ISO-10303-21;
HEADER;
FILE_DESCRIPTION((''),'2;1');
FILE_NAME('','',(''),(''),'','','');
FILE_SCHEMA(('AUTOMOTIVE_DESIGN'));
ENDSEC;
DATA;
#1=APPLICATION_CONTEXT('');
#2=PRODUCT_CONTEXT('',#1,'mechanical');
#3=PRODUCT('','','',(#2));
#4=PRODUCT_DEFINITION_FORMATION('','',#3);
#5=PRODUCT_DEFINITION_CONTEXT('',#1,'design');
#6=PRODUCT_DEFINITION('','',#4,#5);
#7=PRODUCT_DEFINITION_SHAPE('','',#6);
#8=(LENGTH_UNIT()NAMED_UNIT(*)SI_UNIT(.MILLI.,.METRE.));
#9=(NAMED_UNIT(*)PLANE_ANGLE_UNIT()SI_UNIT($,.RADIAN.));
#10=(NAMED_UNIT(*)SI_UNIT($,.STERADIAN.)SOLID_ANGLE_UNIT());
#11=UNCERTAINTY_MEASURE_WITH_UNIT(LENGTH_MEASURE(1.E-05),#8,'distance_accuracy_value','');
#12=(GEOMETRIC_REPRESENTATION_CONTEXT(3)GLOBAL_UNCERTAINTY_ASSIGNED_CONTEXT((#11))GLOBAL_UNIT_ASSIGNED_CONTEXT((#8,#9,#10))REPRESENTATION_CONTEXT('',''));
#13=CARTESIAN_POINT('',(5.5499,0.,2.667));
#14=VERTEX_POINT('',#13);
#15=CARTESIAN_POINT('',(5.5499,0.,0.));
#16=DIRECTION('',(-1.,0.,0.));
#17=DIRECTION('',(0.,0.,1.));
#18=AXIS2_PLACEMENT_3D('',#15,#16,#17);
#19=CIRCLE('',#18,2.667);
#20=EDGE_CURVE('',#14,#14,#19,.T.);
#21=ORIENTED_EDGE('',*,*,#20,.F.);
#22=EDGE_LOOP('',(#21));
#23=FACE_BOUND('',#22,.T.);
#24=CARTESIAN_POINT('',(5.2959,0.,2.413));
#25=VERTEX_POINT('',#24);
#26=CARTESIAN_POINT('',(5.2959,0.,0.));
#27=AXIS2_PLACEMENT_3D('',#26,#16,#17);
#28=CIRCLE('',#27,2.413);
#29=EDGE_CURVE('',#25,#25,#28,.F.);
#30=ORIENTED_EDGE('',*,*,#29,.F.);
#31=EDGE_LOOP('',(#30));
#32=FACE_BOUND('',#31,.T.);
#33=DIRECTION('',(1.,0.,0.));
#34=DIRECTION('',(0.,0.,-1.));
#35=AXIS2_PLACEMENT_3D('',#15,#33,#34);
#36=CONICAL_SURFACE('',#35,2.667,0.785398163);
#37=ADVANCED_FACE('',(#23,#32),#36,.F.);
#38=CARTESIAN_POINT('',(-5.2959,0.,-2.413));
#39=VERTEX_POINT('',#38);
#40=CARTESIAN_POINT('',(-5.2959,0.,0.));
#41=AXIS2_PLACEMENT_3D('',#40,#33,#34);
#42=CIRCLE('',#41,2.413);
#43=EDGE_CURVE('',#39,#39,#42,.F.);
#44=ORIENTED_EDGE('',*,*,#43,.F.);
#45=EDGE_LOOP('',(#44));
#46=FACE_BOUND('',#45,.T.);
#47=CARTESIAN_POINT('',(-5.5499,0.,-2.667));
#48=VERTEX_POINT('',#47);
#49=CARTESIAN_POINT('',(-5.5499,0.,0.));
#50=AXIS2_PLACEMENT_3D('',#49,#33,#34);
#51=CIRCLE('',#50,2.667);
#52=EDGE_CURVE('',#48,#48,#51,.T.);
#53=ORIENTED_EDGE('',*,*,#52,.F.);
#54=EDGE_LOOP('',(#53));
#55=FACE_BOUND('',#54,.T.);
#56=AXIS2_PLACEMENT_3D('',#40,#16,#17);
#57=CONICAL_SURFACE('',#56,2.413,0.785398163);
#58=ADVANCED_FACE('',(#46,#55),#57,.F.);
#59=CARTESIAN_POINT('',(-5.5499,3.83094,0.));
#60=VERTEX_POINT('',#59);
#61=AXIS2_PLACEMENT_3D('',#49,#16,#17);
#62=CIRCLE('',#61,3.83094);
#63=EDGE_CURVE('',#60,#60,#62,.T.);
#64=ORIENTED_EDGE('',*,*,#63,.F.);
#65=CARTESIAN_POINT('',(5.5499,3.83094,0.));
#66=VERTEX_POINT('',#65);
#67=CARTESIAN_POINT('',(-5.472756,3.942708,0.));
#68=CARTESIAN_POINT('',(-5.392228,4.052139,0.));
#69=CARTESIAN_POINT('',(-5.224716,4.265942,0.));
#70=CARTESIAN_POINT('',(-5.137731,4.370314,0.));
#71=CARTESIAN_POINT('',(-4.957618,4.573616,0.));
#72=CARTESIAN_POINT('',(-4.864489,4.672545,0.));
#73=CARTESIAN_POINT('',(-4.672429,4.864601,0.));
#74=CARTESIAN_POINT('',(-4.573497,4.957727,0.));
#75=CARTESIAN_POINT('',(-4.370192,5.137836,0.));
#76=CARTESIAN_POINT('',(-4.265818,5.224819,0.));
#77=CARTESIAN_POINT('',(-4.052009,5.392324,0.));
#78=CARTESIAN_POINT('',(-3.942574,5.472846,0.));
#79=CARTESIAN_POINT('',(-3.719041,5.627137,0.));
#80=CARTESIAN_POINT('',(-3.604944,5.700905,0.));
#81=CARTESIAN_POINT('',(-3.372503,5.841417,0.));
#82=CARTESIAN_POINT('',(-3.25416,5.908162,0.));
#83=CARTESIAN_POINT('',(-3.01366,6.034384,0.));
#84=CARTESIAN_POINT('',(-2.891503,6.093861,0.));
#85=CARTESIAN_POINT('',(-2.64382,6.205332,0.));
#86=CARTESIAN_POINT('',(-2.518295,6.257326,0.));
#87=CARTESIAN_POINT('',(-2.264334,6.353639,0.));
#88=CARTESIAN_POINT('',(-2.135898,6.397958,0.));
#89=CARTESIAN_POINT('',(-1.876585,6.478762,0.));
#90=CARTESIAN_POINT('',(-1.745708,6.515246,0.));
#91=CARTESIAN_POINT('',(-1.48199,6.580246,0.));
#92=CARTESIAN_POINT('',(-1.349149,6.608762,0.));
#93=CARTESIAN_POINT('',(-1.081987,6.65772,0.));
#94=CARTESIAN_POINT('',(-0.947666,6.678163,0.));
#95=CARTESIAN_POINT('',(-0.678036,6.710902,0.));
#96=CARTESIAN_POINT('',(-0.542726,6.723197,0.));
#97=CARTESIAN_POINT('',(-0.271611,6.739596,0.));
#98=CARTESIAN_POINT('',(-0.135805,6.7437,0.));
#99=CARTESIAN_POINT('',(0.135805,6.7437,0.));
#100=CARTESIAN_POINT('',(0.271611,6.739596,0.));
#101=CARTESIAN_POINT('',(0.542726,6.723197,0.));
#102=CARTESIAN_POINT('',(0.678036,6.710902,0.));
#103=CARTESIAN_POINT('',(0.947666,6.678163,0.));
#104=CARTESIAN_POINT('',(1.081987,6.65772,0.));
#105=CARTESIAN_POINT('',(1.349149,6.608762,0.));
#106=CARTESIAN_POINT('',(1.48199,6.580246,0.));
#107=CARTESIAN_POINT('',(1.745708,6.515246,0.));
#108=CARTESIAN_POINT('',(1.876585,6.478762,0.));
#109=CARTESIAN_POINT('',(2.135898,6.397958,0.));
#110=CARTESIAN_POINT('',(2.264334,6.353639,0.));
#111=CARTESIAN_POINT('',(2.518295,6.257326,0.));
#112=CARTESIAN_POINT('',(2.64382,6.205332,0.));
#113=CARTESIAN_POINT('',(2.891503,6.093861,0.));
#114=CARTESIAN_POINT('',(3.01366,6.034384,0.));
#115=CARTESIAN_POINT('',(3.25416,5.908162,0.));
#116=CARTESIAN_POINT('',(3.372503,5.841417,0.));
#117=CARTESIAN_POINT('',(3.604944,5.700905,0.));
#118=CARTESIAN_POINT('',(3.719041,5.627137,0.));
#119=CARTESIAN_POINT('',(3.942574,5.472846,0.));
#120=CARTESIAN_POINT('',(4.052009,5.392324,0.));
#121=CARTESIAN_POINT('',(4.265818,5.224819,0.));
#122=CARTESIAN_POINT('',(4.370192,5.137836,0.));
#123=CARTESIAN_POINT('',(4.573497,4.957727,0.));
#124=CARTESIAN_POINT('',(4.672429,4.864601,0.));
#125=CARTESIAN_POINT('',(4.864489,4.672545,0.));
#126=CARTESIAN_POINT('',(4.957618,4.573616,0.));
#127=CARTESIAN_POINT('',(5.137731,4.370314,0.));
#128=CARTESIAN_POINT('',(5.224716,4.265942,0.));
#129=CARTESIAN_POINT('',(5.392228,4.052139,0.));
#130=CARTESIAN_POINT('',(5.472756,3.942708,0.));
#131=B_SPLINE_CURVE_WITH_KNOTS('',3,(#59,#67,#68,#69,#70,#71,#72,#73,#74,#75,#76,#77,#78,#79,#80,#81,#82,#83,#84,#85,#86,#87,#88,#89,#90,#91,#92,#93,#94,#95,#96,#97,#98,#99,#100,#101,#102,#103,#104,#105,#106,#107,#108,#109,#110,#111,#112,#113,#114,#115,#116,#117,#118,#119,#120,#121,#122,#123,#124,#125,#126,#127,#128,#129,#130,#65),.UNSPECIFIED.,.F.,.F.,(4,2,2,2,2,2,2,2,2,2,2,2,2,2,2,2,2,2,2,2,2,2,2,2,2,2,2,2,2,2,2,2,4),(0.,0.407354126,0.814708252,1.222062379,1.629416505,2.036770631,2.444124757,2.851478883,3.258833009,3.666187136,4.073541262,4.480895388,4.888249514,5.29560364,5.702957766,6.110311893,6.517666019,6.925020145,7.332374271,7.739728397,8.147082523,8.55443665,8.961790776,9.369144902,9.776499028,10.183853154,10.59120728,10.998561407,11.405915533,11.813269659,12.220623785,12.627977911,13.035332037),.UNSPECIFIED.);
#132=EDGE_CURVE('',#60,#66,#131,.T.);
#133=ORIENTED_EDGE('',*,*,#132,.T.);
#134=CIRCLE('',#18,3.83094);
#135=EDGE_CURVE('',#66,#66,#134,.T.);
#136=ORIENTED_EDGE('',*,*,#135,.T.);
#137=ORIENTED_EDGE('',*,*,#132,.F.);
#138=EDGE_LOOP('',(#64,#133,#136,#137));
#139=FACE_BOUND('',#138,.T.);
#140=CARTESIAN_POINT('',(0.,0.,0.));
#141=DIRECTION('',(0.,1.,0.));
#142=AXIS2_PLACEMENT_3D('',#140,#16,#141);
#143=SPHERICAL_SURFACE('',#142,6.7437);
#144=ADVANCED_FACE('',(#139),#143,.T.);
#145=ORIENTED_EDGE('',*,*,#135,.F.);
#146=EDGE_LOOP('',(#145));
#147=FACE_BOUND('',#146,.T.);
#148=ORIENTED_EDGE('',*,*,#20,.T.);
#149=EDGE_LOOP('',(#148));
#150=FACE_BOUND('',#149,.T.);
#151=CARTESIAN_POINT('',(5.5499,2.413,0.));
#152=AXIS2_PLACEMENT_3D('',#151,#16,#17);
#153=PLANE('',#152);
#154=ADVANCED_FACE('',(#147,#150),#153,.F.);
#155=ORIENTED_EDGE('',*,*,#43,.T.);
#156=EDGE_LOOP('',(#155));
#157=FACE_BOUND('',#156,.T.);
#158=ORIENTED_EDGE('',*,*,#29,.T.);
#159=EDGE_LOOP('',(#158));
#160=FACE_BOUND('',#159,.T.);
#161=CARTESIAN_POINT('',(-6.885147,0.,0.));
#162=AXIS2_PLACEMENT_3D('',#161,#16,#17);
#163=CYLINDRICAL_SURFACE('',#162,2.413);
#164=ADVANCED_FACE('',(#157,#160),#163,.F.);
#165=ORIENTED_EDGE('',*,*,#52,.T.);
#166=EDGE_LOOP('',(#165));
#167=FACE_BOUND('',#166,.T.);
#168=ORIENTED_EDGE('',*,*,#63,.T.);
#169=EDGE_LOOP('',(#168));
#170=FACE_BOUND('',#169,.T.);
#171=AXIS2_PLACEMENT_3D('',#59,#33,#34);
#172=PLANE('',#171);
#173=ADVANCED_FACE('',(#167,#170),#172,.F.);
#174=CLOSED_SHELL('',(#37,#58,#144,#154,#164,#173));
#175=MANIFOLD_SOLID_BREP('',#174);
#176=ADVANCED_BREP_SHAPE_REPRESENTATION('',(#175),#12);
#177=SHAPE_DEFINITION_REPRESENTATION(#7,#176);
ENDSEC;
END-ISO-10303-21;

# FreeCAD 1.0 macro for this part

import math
import FreeCAD as App
import Part
import Sketcher
Q = App.Units.Quantity


def edges_at(feature, points):
    """Names of the edges that pass closest to the given points."""
    edges = feature.Shape.Edges
    near = lambda p: min(range(len(edges)), key=lambda i: edges[i].distToShape(Part.Vertex(*p))[0])
    return sorted({f"Edge{near(p) + 1}" for p in points})

doc = App.newDocument("Part")
params = doc.addObject("Spreadsheet::Sheet", "Params")
for row, (alias, value) in enumerate([
    ("sketch1_width", "0.437 in"),
    ("revolution_angle", "360 deg"),
    ("chamfer_size", "0.01 in"),
], start=1):
    params.set(f"A{row}", alias)
    params.set(f"B{row}", "=" + value)
    params.setAlias(f"B{row}", alias)

body = doc.addObject("PartDesign::Body", "Body")

# Sketch on XY plane
sketch1 = doc.addObject("Sketcher::SketchObject", "Sketch")
body.addObject(sketch1)
sketch1.AttachmentSupport = (doc.XY_Plane, [""])
sketch1.MapMode = "FlatFace"
sketch1.addGeometry(Part.LineSegment(App.Vector(-5.5, 3.8, 0), App.Vector(-5.5, 2.4, 0)), False)
sketch1.addGeometry(Part.LineSegment(App.Vector(-5.5, 2.4, 0), App.Vector(5.5, 2.4, 0)), False)
sketch1.addGeometry(Part.LineSegment(App.Vector(5.5, 2.4, 0), App.Vector(5.5, 3.8, 0)), False)
sketch1.addGeometry(Part.ArcOfCircle(Part.Circle(App.Vector(0, 0, 0), App.Vector(0, 0, 1), 6.7), math.radians(35), math.radians(145)), False)
sketch1.addConstraint(Sketcher.Constraint("Coincident", 0, 2, 1, 1))
sketch1.addConstraint(Sketcher.Constraint("Coincident", 1, 2, 2, 1))
sketch1.addConstraint(Sketcher.Constraint("Coincident", 2, 2, 3, 1))
sketch1.addConstraint(Sketcher.Constraint("Coincident", 3, 2, 0, 1))
sketch1.addConstraint(Sketcher.Constraint("Vertical", 0))
sketch1.addConstraint(Sketcher.Constraint("Horizontal", 1))
sketch1.addConstraint(Sketcher.Constraint("Vertical", 2))
sketch1.addConstraint(Sketcher.Constraint("Coincident", 3, 3, -1, 1))
sketch1.addConstraint(Sketcher.Constraint("Horizontal", 2, 2, 3, 2))
sketch1.addConstraint(Sketcher.Constraint("Radius", 3, Q("0.2655 in")))
sketch1.addConstraint(Sketcher.Constraint("DistanceX", 1, 1, 1, 2, Q("0.437 in")))
sketch1.addConstraint(Sketcher.Constraint("DistanceY", -1, 1, 0, 2, Q("0.095 in")))
sketch1.setExpression("Constraints[10]", "Params.sketch1_width")
revolution = doc.addObject("PartDesign::Revolution", "Revolution")
body.addObject(revolution)
revolution.Profile = sketch1
revolution.ReferenceAxis = (sketch1, ["H_Axis"])
revolution.setExpression("Angle", "Params.revolution_angle")
doc.recompute()

chamfer = doc.addObject("PartDesign::Chamfer", "Chamfer")
body.addObject(chamfer)
chamfer.Base = (revolution, edges_at(revolution, [(5.55, -2.413, 0), (-5.55, -2.413, 0)]))
chamfer.setExpression("Size", "Params.chamfer_size")

doc.recompute()
